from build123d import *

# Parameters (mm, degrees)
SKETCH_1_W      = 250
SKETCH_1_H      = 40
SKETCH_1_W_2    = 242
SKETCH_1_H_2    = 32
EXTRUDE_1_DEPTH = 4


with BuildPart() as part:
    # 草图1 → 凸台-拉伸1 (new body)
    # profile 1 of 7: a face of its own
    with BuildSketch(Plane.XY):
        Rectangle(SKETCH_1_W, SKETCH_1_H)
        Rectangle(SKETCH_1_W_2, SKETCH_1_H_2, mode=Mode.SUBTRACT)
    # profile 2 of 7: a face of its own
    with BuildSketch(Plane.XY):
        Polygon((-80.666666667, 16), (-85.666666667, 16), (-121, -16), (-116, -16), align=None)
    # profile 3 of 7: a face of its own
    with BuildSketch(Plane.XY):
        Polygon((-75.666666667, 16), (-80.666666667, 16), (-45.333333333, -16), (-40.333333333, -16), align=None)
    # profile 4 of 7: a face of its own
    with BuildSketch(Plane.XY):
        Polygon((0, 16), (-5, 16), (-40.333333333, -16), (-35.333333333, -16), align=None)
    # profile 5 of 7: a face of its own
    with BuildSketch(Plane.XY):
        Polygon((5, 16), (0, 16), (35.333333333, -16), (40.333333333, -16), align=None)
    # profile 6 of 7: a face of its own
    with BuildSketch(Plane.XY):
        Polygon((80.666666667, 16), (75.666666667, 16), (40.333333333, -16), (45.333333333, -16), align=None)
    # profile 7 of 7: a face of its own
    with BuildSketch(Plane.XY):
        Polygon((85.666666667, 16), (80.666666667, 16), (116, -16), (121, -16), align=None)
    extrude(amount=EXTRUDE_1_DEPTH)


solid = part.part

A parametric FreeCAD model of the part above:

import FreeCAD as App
import Part
import Sketcher
from FreeCAD import Vector
Q = App.Units.Quantity

doc = App.newDocument("Part")
body = doc.addObject("PartDesign::Body", "Body")

sketch1 = body.newObject("Sketcher::SketchObject", "Sketch")
sketch1.AttachmentSupport = (doc.getObject("XY_Plane"), [""])
sketch1.MapMode = "FlatFace"
sketch1.addGeometry([
    Part.LineSegment(Vector(-125, 20, 0), Vector(-125, -20, 0)),
    Part.LineSegment(Vector(-125, -20, 0), Vector(125, -20, 0)),
    Part.LineSegment(Vector(125, -20, 0), Vector(125, 20, 0)),
    Part.LineSegment(Vector(125, 20, 0), Vector(-125, 20, 0)),
    Part.LineSegment(Vector(-45, -16, 0), Vector(-116, -16, 0)),
    Part.LineSegment(Vector(-116, -16, 0), Vector(-81, 16, 0)),
    Part.LineSegment(Vector(-81, 16, 0), Vector(-45, -16, 0)),
    Part.LineSegment(Vector(35, -16, 0), Vector(-35, -16, 0)),
    Part.LineSegment(Vector(-35, -16, 0), Vector(0, 16, 0)),
    Part.LineSegment(Vector(0, 16, 0), Vector(35, -16, 0)),
    Part.LineSegment(Vector(116, -16, 0), Vector(45, -16, 0)),
    Part.LineSegment(Vector(45, -16, 0), Vector(81, 16, 0)),
    Part.LineSegment(Vector(81, 16, 0), Vector(116, -16, 0)),
    Part.LineSegment(Vector(121, 16, 0), Vector(121, -16, 0)),
    Part.LineSegment(Vector(121, -16, 0), Vector(86, 16, 0)),
    Part.LineSegment(Vector(86, 16, 0), Vector(121, 16, 0)),
    Part.LineSegment(Vector(-121, 16, 0), Vector(-86, 16, 0)),
    Part.LineSegment(Vector(-86, 16, 0), Vector(-121, -16, 0)),
    Part.LineSegment(Vector(-121, -16, 0), Vector(-121, 16, 0)),
    Part.LineSegment(Vector(-76, 16, 0), Vector(-5, 16, 0)),
    Part.LineSegment(Vector(-5, 16, 0), Vector(-40, -16, 0)),
    Part.LineSegment(Vector(-40, -16, 0), Vector(-76, 16, 0)),
    Part.LineSegment(Vector(5, 16, 0), Vector(76, 16, 0)),
    Part.LineSegment(Vector(76, 16, 0), Vector(40, -16, 0)),
    Part.LineSegment(Vector(40, -16, 0), Vector(5, 16, 0)),
], False)
sketch1.addConstraint([
    Sketcher.Constraint("Coincident", 0, 2, 1, 1),
    Sketcher.Constraint("Coincident", 1, 2, 2, 1),
    Sketcher.Constraint("Coincident", 2, 2, 3, 1),
    Sketcher.Constraint("Coincident", 3, 2, 0, 1),
    Sketcher.Constraint("Coincident", 4, 2, 5, 1),
    Sketcher.Constraint("Coincident", 5, 2, 6, 1),
    Sketcher.Constraint("Coincident", 6, 2, 4, 1),
    Sketcher.Constraint("Coincident", 7, 2, 8, 1),
    Sketcher.Constraint("Coincident", 8, 2, 9, 1),
    Sketcher.Constraint("Coincident", 9, 2, 7, 1),
    Sketcher.Constraint("Coincident", 10, 2, 11, 1),
    Sketcher.Constraint("Coincident", 11, 2, 12, 1),
    Sketcher.Constraint("Coincident", 12, 2, 10, 1),
    Sketcher.Constraint("Coincident", 13, 2, 14, 1),
    Sketcher.Constraint("Coincident", 14, 2, 15, 1),
    Sketcher.Constraint("Coincident", 15, 2, 13, 1),
    Sketcher.Constraint("Coincident", 16, 2, 17, 1),
    Sketcher.Constraint("Coincident", 17, 2, 18, 1),
    Sketcher.Constraint("Coincident", 18, 2, 16, 1),
    Sketcher.Constraint("Coincident", 19, 2, 20, 1),
    Sketcher.Constraint("Coincident", 20, 2, 21, 1),
    Sketcher.Constraint("Coincident", 21, 2, 19, 1),
    Sketcher.Constraint("Coincident", 22, 2, 23, 1),
    Sketcher.Constraint("Coincident", 23, 2, 24, 1),
    Sketcher.Constraint("Coincident", 24, 2, 22, 1),
    Sketcher.Constraint("Vertical", 0),
    Sketcher.Constraint("Horizontal", 1),
    Sketcher.Constraint("Vertical", 2),
    Sketcher.Constraint("Horizontal", 3),
    Sketcher.Constraint("Horizontal", 4),
    Sketcher.Constraint("Horizontal", 7),
    Sketcher.Constraint("Horizontal", 10),
    Sketcher.Constraint("Vertical", 13),
    Sketcher.Constraint("Horizontal", 15),
    Sketcher.Constraint("Horizontal", 16),
    Sketcher.Constraint("Vertical", 18),
    Sketcher.Constraint("Horizontal", 19),
    Sketcher.Constraint("Horizontal", 22),
    Sketcher.Constraint("Symmetric", 0, 2, 2, 2, -1, 1),
    Sketcher.Constraint("Symmetric", 15, 2, 17, 2, -1, 1),
    Sketcher.Constraint("Symmetric", 6, 2, 10, 2, -2),
    Sketcher.Constraint("Symmetric", 5, 2, 11, 2, -2),
    Sketcher.Constraint("Symmetric", 14, 2, 16, 2, -2),
    Sketcher.Constraint("Symmetric", 21, 2, 22, 2, -2),
    Sketcher.Constraint("Symmetric", 20, 2, 23, 2, -2),
    Sketcher.Constraint("PointOnObject", 8, 2, -2),
    Sketcher.Constraint("Parallel", 5, 8),
    Sketcher.Constraint("Parallel", 6, 9),
    Sketcher.Constraint("Parallel", 8, 11),
    Sketcher.Constraint("Parallel", 9, 12),
    Sketcher.Constraint("Parallel", 12, 14),
    Sketcher.Constraint("Parallel", 11, 17),
    Sketcher.Constraint("Parallel", 17, 20),
    Sketcher.Constraint("Parallel", 14, 21),
    Sketcher.Constraint("Parallel", 21, 24),
    Sketcher.Constraint("Horizontal", 6, 2, 7, 2),
    Sketcher.Constraint("Horizontal", 5, 2, 8, 2),
    Sketcher.Constraint("Horizontal", 12, 2, 13, 2),
    Sketcher.Constraint("Horizontal", 11, 2, 14, 2),
    Sketcher.Constraint("Horizontal", 18, 2, 19, 2),
    Sketcher.Constraint("Horizontal", 17, 2, 20, 2),
    Sketcher.Constraint("DistanceX", 1, 1, 1, 2, Q("250 mm")),
    Sketcher.Constraint("DistanceY", 0, 2, 0, 1, Q("40 mm")),
    Sketcher.Constraint("DistanceY", 13, 2, 13, 1, Q("32 mm")),
    Sketcher.Constraint("DistanceX", 4, 2, -1, 1, Q("116 mm")),
    Sketcher.Constraint("DistanceX", -1, 1, 13, 2, Q("121 mm")),
    Sketcher.Constraint("DistanceX", 19, 2, -1, 1, Q("5 mm")),
    Sketcher.Constraint("DistanceX", 6, 2, 7, 2, Q("10 mm")),
])
pad1 = body.newObject("PartDesign::Pad", "Pad")
pad1.Profile = sketch1
pad1.Length = 4

doc.recompute()
